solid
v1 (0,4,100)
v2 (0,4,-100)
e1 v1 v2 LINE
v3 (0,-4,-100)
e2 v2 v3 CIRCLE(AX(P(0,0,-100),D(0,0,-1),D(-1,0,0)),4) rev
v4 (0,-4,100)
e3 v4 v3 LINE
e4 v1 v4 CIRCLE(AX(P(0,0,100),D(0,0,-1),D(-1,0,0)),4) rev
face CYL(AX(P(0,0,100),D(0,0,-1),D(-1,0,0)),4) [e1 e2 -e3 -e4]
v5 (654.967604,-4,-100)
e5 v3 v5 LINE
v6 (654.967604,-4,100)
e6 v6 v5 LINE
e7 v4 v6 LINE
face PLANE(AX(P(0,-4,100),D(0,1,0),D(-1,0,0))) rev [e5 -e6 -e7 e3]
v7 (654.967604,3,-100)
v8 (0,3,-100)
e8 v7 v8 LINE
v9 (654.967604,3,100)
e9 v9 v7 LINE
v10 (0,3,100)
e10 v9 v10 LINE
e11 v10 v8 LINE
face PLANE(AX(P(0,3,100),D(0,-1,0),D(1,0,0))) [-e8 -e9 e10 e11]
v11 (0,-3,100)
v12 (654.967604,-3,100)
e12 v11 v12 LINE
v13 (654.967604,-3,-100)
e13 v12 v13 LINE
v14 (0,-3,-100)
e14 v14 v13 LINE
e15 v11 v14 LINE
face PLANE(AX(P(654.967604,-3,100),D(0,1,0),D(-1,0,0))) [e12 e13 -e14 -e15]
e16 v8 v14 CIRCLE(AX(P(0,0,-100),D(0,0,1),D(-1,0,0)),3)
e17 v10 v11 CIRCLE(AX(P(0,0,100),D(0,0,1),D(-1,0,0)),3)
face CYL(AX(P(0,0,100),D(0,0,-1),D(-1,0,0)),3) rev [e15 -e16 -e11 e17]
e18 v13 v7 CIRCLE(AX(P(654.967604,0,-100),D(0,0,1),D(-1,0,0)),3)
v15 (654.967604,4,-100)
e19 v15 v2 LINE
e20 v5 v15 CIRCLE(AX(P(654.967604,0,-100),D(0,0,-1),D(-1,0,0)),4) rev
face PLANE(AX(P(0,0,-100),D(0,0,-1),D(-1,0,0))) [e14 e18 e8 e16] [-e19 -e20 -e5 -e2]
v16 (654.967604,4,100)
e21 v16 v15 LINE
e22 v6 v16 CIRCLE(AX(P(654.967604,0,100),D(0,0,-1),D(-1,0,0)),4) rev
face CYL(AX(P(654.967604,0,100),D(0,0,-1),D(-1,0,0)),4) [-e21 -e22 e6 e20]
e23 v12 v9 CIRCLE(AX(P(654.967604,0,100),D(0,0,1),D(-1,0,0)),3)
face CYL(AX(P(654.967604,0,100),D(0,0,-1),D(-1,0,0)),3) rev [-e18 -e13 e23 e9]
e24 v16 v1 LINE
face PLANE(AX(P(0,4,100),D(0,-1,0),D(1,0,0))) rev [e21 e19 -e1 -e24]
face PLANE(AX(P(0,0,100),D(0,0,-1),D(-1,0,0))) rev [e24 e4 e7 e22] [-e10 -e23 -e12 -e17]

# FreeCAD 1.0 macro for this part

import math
import FreeCAD as App
import Part
import Sketcher
Q = App.Units.Quantity

doc = App.newDocument("Part")
body = doc.addObject("PartDesign::Body", "Body")

# Sketch on XY plane
sketch1 = body.newObject("Sketcher::SketchObject", "Sketch")
sketch1.AttachmentSupport = (doc.getObject("XY_Plane"), [""])
sketch1.MapMode = "FlatFace"
sketch1.addGeometry(Part.LineSegment(App.Vector(0, -4, 0), App.Vector(655, -4, 0)), False)
sketch1.addGeometry(Part.ArcOfCircle(Part.Circle(App.Vector(655, 0, 0), App.Vector(0, 0, 1), 4), math.radians(-90), math.radians(90)), False)
sketch1.addGeometry(Part.LineSegment(App.Vector(655, 4, 0), App.Vector(0, 4, 0)), False)
sketch1.addGeometry(Part.ArcOfCircle(Part.Circle(App.Vector(0, 0, 0), App.Vector(0, 0, 1), 4), math.radians(90), math.radians(270)), False)
sketch1.addGeometry(Part.LineSegment(App.Vector(655, -3, 0), App.Vector(0, -3, 0)), False)
sketch1.addGeometry(Part.ArcOfCircle(Part.Circle(App.Vector(0, 0, 0), App.Vector(0, 0, 1), 3), math.radians(90), math.radians(270)), False)
sketch1.addGeometry(Part.LineSegment(App.Vector(0, 3, 0), App.Vector(655, 3, 0)), False)
sketch1.addGeometry(Part.ArcOfCircle(Part.Circle(App.Vector(655, 0, 0), App.Vector(0, 0, 1), 3), math.radians(-90), math.radians(90)), False)
sketch1.addConstraint(Sketcher.Constraint("Tangent", 0, 2, 1, 1))
sketch1.addConstraint(Sketcher.Constraint("Tangent", 1, 2, 2, 1))
sketch1.addConstraint(Sketcher.Constraint("Tangent", 2, 2, 3, 1))
sketch1.addConstraint(Sketcher.Constraint("Tangent", 3, 2, 0, 1))
sketch1.addConstraint(Sketcher.Constraint("Tangent", 4, 2, 5, 2))
sketch1.addConstraint(Sketcher.Constraint("Tangent", 5, 1, 6, 1))
sketch1.addConstraint(Sketcher.Constraint("Tangent", 6, 2, 7, 2))
sketch1.addConstraint(Sketcher.Constraint("Tangent", 7, 1, 4, 1))
sketch1.addConstraint(Sketcher.Constraint("Horizontal", 0))
sketch1.addConstraint(Sketcher.Constraint("Horizontal", 2))
sketch1.addConstraint(Sketcher.Constraint("Horizontal", 4))
sketch1.addConstraint(Sketcher.Constraint("Horizontal", 6))
sketch1.addConstraint(Sketcher.Constraint("Coincident", 3, 3, -1, 1))
sketch1.addConstraint(Sketcher.Constraint("Coincident", 5, 3, -1, 1))
sketch1.addConstraint(Sketcher.Constraint("Vertical", 7, 3, 0, 2))
sketch1.addConstraint(Sketcher.Constraint("Radius", 1, Q("4 mm")))
sketch1.addConstraint(Sketcher.Constraint("Radius", 5, Q("3 mm")))
sketch1.addConstraint(Sketcher.Constraint("DistanceX", 0, 1, 0, 2, Q("654.967604 mm")))
pad1 = body.newObject("PartDesign::Pad", "Pad")
pad1.Profile = sketch1
pad1.Length = 200
pad1.Midplane = True

doc.recompute()
